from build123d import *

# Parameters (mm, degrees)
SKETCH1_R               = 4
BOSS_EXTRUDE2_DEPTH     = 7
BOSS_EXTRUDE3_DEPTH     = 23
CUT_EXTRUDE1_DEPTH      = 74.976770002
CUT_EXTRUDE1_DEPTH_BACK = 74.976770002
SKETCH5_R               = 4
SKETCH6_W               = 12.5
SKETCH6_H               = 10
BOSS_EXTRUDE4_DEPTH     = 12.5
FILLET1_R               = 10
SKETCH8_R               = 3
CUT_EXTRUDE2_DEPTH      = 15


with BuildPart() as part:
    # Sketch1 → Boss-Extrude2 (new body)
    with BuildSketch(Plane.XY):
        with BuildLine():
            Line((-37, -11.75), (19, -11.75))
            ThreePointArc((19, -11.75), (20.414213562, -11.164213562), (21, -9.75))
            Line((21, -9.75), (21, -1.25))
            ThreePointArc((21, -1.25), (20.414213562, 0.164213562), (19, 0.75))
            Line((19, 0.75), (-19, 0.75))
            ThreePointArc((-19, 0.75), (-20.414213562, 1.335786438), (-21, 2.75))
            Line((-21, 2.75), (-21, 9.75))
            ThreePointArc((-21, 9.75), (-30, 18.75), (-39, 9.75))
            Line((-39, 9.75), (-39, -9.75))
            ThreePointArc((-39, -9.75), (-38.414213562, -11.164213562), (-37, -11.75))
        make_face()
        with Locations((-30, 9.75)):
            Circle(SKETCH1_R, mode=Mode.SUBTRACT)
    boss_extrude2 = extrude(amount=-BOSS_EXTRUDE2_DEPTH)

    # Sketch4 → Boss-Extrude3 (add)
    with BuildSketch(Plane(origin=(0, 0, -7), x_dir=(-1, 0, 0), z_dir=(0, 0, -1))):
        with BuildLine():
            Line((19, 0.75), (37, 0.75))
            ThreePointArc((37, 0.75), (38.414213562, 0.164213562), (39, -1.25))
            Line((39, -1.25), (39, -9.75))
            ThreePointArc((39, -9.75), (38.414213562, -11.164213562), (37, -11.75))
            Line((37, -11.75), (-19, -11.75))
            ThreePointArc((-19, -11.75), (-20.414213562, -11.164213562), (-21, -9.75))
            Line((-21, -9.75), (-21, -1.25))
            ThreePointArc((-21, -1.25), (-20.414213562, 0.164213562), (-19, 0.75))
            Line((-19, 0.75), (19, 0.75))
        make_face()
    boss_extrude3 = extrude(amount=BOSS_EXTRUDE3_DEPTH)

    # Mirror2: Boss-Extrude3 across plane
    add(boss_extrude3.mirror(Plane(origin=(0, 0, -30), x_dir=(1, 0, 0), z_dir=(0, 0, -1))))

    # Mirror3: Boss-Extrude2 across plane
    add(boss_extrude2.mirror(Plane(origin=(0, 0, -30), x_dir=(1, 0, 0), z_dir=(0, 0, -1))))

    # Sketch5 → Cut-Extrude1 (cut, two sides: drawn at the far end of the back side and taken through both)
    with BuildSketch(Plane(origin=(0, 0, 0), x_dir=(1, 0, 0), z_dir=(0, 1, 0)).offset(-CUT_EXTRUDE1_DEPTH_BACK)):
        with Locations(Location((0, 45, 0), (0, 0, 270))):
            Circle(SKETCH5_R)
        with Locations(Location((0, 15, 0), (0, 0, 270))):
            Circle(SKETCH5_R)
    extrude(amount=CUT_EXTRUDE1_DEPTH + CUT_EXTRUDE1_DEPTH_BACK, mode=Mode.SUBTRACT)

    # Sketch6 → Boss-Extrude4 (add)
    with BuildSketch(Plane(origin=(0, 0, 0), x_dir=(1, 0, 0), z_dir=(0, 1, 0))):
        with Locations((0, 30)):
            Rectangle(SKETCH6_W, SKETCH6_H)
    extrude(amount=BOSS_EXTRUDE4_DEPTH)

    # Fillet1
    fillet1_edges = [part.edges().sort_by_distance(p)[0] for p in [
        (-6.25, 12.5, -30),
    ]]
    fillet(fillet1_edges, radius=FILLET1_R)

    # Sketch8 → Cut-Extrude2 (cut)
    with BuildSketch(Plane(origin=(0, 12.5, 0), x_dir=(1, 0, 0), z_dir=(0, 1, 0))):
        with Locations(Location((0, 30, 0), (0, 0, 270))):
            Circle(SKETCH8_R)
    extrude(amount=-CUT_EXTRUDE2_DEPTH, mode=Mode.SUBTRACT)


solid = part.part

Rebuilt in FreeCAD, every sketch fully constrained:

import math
import FreeCAD as App
import Part
import Sketcher

V = App.Vector
Q = App.Units.Quantity


def edges_at(feature, points):
    """Names of the edges that pass closest to the given points."""
    edges = feature.Shape.Edges
    near = lambda p: min(range(len(edges)), key=lambda i: edges[i].distToShape(Part.Vertex(*p))[0])
    return sorted({f"Edge{near(p) + 1}" for p in points})

doc = App.newDocument("Part")
body = doc.addObject("PartDesign::Body", "Body")

# Sketch on XY plane
sketch1 = body.newObject("Sketcher::SketchObject", "Sketch")
sketch1.AttachmentSupport = (doc.getObject("XY_Plane"), [""])
sketch1.MapMode = "FlatFace"
sketch1.addGeometry(Part.LineSegment(V(-37, -11.75, 0), V(19, -11.75, 0)), False)
sketch1.addGeometry(Part.ArcOfCircle(Part.Circle(V(19, -9.75, 0), V(0, 0, 1), 2), math.radians(-90), math.radians(0)), False)
sketch1.addGeometry(Part.LineSegment(V(21, -9.75, 0), V(21, -1.25, 0)), False)
sketch1.addGeometry(Part.ArcOfCircle(Part.Circle(V(19, -1.25, 0), V(0, 0, 1), 2), math.radians(0), math.radians(90)), False)
sketch1.addGeometry(Part.LineSegment(V(19, 0.75, 0), V(-19, 0.75, 0)), False)
sketch1.addGeometry(Part.ArcOfCircle(Part.Circle(V(-19, 2.75, 0), V(0, 0, 1), 2), math.radians(-180), math.radians(-90)), False)
sketch1.addGeometry(Part.LineSegment(V(-21, 2.75, 0), V(-21, 9.75, 0)), False)
sketch1.addGeometry(Part.ArcOfCircle(Part.Circle(V(-30, 9.75, 0), V(0, 0, 1), 9), math.radians(0), math.radians(180)), False)
sketch1.addGeometry(Part.LineSegment(V(-39, 9.75, 0), V(-39, -9.75, 0)), False)
sketch1.addGeometry(Part.ArcOfCircle(Part.Circle(V(-37, -9.75, 0), V(0, 0, 1), 2), math.radians(-180), math.radians(-90)), False)
sketch1.addGeometry(Part.Circle(V(-30, 9.75, 0), V(0, 0, 1), 4), False)
sketch1.addConstraint(Sketcher.Constraint("Tangent", 0, 2, 1, 1))
sketch1.addConstraint(Sketcher.Constraint("Tangent", 1, 2, 2, 1))
sketch1.addConstraint(Sketcher.Constraint("Tangent", 2, 2, 3, 1))
sketch1.addConstraint(Sketcher.Constraint("Tangent", 3, 2, 4, 1))
sketch1.addConstraint(Sketcher.Constraint("Tangent", 4, 2, 5, 2))
sketch1.addConstraint(Sketcher.Constraint("Tangent", 5, 1, 6, 1))
sketch1.addConstraint(Sketcher.Constraint("Tangent", 6, 2, 7, 1))
sketch1.addConstraint(Sketcher.Constraint("Tangent", 7, 2, 8, 1))
sketch1.addConstraint(Sketcher.Constraint("Tangent", 8, 2, 9, 1))
sketch1.addConstraint(Sketcher.Constraint("Tangent", 9, 2, 0, 1))
sketch1.addConstraint(Sketcher.Constraint("Horizontal", 0))
sketch1.addConstraint(Sketcher.Constraint("Vertical", 2))
sketch1.addConstraint(Sketcher.Constraint("Horizontal", 4))
sketch1.addConstraint(Sketcher.Constraint("Vertical", 6))
sketch1.addConstraint(Sketcher.Constraint("Vertical", 8))
sketch1.addConstraint(Sketcher.Constraint("Coincident", 10, 3, 7, 3))
sketch1.addConstraint(Sketcher.Constraint("Equal", 1, 3))
sketch1.addConstraint(Sketcher.Constraint("Equal", 3, 5))
sketch1.addConstraint(Sketcher.Constraint("Equal", 5, 9))
sketch1.addConstraint(Sketcher.Constraint("Symmetric", 1, 2, 6, 2, -1, 1))
sketch1.addConstraint(Sketcher.Constraint("Diameter", 10, Q("8 mm")))
sketch1.addConstraint(Sketcher.Constraint("Radius", 1, Q("2 mm")))
sketch1.addConstraint(Sketcher.Constraint("Radius", 7, Q("9 mm")))
sketch1.addConstraint(Sketcher.Constraint("DistanceX", 0, 1, 0, 2, Q("56 mm")))
sketch1.addConstraint(Sketcher.Constraint("DistanceY", 6, 1, 6, 2, Q("7 mm")))
sketch1.addConstraint(Sketcher.Constraint("DistanceY", 2, 1, 2, 2, Q("8.5 mm")))
pad1 = body.newObject("PartDesign::Pad", "Pad")
pad1.Profile = sketch1
pad1.Length = 7
pad1.Reversed = True

# Sketch on XY plane
sketch2 = body.newObject("Sketcher::SketchObject", "Sketch001")
sketch2.AttachmentSupport = (doc.getObject("XY_Plane"), [""])
sketch2.MapMode = "FlatFace"
sketch2.AttachmentOffset = App.Placement(V(0, 0, -7), App.Rotation())
sketch2.addGeometry(Part.ArcOfCircle(Part.Circle(V(-37, -1.25, 0), V(0, 0, 1), 2), math.radians(90), math.radians(180)), False)
sketch2.addGeometry(Part.LineSegment(V(-37, 0.75, 0), V(19, 0.75, 0)), False)
sketch2.addGeometry(Part.ArcOfCircle(Part.Circle(V(19, -1.25, 0), V(0, 0, 1), 2), math.radians(0), math.radians(90)), False)
sketch2.addGeometry(Part.LineSegment(V(21, -1.25, 0), V(21, -9.75, 0)), False)
sketch2.addGeometry(Part.ArcOfCircle(Part.Circle(V(19, -9.75, 0), V(0, 0, 1), 2), math.radians(-90), math.radians(0)), False)
sketch2.addGeometry(Part.LineSegment(V(19, -11.75, 0), V(-37, -11.75, 0)), False)
sketch2.addGeometry(Part.ArcOfCircle(Part.Circle(V(-37, -9.75, 0), V(0, 0, 1), 2), math.radians(-180), math.radians(-90)), False)
sketch2.addGeometry(Part.LineSegment(V(-39, -9.75, 0), V(-39, -1.25, 0)), False)
sketch2.addConstraint(Sketcher.Constraint("Tangent", 0, 1, 1, 1))
sketch2.addConstraint(Sketcher.Constraint("Tangent", 1, 2, 2, 2))
sketch2.addConstraint(Sketcher.Constraint("Tangent", 2, 1, 3, 1))
sketch2.addConstraint(Sketcher.Constraint("Tangent", 3, 2, 4, 2))
sketch2.addConstraint(Sketcher.Constraint("Tangent", 4, 1, 5, 1))
sketch2.addConstraint(Sketcher.Constraint("Tangent", 5, 2, 6, 2))
sketch2.addConstraint(Sketcher.Constraint("Tangent", 6, 1, 7, 1))
sketch2.addConstraint(Sketcher.Constraint("Tangent", 7, 2, 0, 2))
sketch2.addConstraint(Sketcher.Constraint("Horizontal", 1))
sketch2.addConstraint(Sketcher.Constraint("Vertical", 3))
sketch2.addConstraint(Sketcher.Constraint("Horizontal", 5))
sketch2.addConstraint(Sketcher.Constraint("Vertical", 7))
sketch2.addConstraint(Sketcher.Constraint("Equal", 0, 2))
sketch2.addConstraint(Sketcher.Constraint("Equal", 2, 4))
sketch2.addConstraint(Sketcher.Constraint("Equal", 4, 6))
sketch2.addConstraint(Sketcher.Constraint("Radius", 0, Q("2 mm")))
sketch2.addConstraint(Sketcher.Constraint("DistanceX", 1, 1, 1, 2, Q("56 mm")))
sketch2.addConstraint(Sketcher.Constraint("DistanceY", 3, 2, 3, 1, Q("8.5 mm")))
sketch2.addConstraint(Sketcher.Constraint("DistanceX", 0, 3, -1, 1, Q("37 mm")))
sketch2.addConstraint(Sketcher.Constraint("DistanceY", 0, 3, -1, 1, Q("1.25 mm")))
pad2 = body.newObject("PartDesign::Pad", "Pad001")
pad2.Profile = sketch2
pad2.Length = 23
pad2.Reversed = True
doc.recompute()

datumplane = body.newObject("PartDesign::Plane", "DatumPlane")
datumplane.AttachmentSupport = (doc.getObject("XY_Plane"), [""])
datumplane.MapMode = "FlatFace"
datumplane.AttachmentOffset = App.Placement(V(0, 0, -30), App.Rotation())
mirrored = body.newObject("PartDesign::Mirrored", "Mirrored")
mirrored.Originals = [pad2]
mirrored.MirrorPlane = (datumplane, [""])
body.Tip = mirrored
doc.recompute()

datumplane2 = body.newObject("PartDesign::Plane", "DatumPlane001")
datumplane2.AttachmentSupport = (doc.getObject("XY_Plane"), [""])
datumplane2.MapMode = "FlatFace"
datumplane2.AttachmentOffset = App.Placement(V(0, 0, -30), App.Rotation())
mirrored2 = body.newObject("PartDesign::Mirrored", "Mirrored001")
mirrored2.Originals = [pad1]
mirrored2.MirrorPlane = (datumplane2, [""])
body.Tip = mirrored2

# Sketch on XZ plane
sketch3 = body.newObject("Sketcher::SketchObject", "Sketch002")
sketch3.AttachmentSupport = (doc.getObject("XZ_Plane"), [""])
sketch3.MapMode = "FlatFace"
sketch3.addGeometry(Part.Circle(V(0, -45, 0), V(0, 0, 1), 4), False)
sketch3.addGeometry(Part.Circle(V(0, -15, 0), V(0, 0, 1), 4), False)
sketch3.addConstraint(Sketcher.Constraint("Equal", 0, 1))
sketch3.addConstraint(Sketcher.Constraint("PointOnObject", 0, 3, -2))
sketch3.addConstraint(Sketcher.Constraint("PointOnObject", 1, 3, -2))
sketch3.addConstraint(Sketcher.Constraint("Diameter", 0, Q("8 mm")))
sketch3.addConstraint(Sketcher.Constraint("DistanceY", 0, 3, -1, 1, Q("45 mm")))
sketch3.addConstraint(Sketcher.Constraint("DistanceY", 1, 3, -1, 1, Q("15 mm")))
pocket1 = body.newObject("PartDesign::Pocket", "Pocket")
pocket1.Profile = sketch3
pocket1.Type = "ThroughAll"
pocket1.Midplane = True

# Sketch on XZ plane
sketch4 = body.newObject("Sketcher::SketchObject", "Sketch003")
sketch4.AttachmentSupport = (doc.getObject("XZ_Plane"), [""])
sketch4.MapMode = "FlatFace"
sketch4.addGeometry(Part.LineSegment(V(-6.25, -35, 0), V(-6.25, -25, 0)), False)
sketch4.addGeometry(Part.LineSegment(V(-6.25, -25, 0), V(6.25, -25, 0)), False)
sketch4.addGeometry(Part.LineSegment(V(6.25, -25, 0), V(6.25, -35, 0)), False)
sketch4.addGeometry(Part.LineSegment(V(6.25, -35, 0), V(-6.25, -35, 0)), False)
sketch4.addConstraint(Sketcher.Constraint("Coincident", 0, 2, 1, 1))
sketch4.addConstraint(Sketcher.Constraint("Coincident", 1, 2, 2, 1))
sketch4.addConstraint(Sketcher.Constraint("Coincident", 2, 2, 3, 1))
sketch4.addConstraint(Sketcher.Constraint("Coincident", 3, 2, 0, 1))
sketch4.addConstraint(Sketcher.Constraint("Vertical", 0))
sketch4.addConstraint(Sketcher.Constraint("Horizontal", 1))
sketch4.addConstraint(Sketcher.Constraint("Vertical", 2))
sketch4.addConstraint(Sketcher.Constraint("Horizontal", 3))
sketch4.addConstraint(Sketcher.Constraint("DistanceY", 0, 1, 0, 2, Q("10 mm")))
sketch4.addConstraint(Sketcher.Constraint("DistanceX", 1, 1, 1, 2, Q("12.5 mm")))
sketch4.addConstraint(Sketcher.Constraint("DistanceY", 0, 2, -1, 1, Q("25 mm")))
sketch4.addConstraint(Sketcher.Constraint("DistanceX", 0, 2, -1, 1, Q("6.25 mm")))
pad3 = body.newObject("PartDesign::Pad", "Pad002")
pad3.Profile = sketch4
pad3.Length = 12.5
pad3.Reversed = True
doc.recompute()

fillet = body.newObject("PartDesign::Fillet", "Fillet")
fillet.Base = (pad3, edges_at(pad3, [(-6.25, 12.5, -30)]))
fillet.Radius = 10

# Sketch on XZ plane
sketch5 = body.newObject("Sketcher::SketchObject", "Sketch004")
sketch5.AttachmentSupport = (doc.getObject("XZ_Plane"), [""])
sketch5.MapMode = "FlatFace"
sketch5.AttachmentOffset = App.Placement(V(0, 0, -12.5), App.Rotation())
sketch5.addGeometry(Part.Circle(V(0, -30, 0), V(0, 0, 1), 3), False)
sketch5.addConstraint(Sketcher.Constraint("PointOnObject", 0, 3, -2))
sketch5.addConstraint(Sketcher.Constraint("Diameter", 0, Q("6 mm")))
sketch5.addConstraint(Sketcher.Constraint("DistanceY", 0, 3, -1, 1, Q("30 mm")))
pocket2 = body.newObject("PartDesign::Pocket", "Pocket001")
pocket2.Profile = sketch5
pocket2.Length = 15
pocket2.Reversed = True

doc.recompute()
